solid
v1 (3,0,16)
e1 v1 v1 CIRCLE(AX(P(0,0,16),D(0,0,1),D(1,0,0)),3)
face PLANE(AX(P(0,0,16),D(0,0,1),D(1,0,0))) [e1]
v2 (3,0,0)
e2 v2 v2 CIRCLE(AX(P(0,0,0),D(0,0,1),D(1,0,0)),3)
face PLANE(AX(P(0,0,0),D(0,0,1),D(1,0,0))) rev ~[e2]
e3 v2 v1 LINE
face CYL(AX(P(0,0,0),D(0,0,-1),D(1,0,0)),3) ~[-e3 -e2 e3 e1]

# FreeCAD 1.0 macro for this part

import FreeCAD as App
import Part
import Sketcher
from FreeCAD import Vector

doc = App.newDocument("Part")
params = doc.addObject("Spreadsheet::Sheet", "Params")
for row, (alias, value) in enumerate([
    ("sketch1_diameter", "6 mm"),
    ("pad1_length", "16 mm"),
], start=1):
    params.set(f"A{row}", alias)
    params.set(f"B{row}", "=" + value)
    params.setAlias(f"B{row}", alias)

body = doc.addObject("PartDesign::Body", "Body")

sketch1 = doc.addObject("Sketcher::SketchObject", "Sketch")
body.addObject(sketch1)
sketch1.AttachmentSupport = (doc.XY_Plane, [""])
sketch1.MapMode = "FlatFace"
sketch1.addGeometry(Part.Circle(Vector(0, 0, 0), Vector(0, 0, 1), 3), False)
sketch1.addConstraint([
    Sketcher.Constraint("Coincident", 0, 3, -1, 1),
    Sketcher.Constraint("Diameter", 0, 6.0),
])
sketch1.setExpression("Constraints[1]", "Params.sketch1_diameter")
pad1 = doc.addObject("PartDesign::Pad", "Pad")
body.addObject(pad1)
pad1.Profile = sketch1
pad1.setExpression("Length", "Params.pad1_length")

doc.recompute()
